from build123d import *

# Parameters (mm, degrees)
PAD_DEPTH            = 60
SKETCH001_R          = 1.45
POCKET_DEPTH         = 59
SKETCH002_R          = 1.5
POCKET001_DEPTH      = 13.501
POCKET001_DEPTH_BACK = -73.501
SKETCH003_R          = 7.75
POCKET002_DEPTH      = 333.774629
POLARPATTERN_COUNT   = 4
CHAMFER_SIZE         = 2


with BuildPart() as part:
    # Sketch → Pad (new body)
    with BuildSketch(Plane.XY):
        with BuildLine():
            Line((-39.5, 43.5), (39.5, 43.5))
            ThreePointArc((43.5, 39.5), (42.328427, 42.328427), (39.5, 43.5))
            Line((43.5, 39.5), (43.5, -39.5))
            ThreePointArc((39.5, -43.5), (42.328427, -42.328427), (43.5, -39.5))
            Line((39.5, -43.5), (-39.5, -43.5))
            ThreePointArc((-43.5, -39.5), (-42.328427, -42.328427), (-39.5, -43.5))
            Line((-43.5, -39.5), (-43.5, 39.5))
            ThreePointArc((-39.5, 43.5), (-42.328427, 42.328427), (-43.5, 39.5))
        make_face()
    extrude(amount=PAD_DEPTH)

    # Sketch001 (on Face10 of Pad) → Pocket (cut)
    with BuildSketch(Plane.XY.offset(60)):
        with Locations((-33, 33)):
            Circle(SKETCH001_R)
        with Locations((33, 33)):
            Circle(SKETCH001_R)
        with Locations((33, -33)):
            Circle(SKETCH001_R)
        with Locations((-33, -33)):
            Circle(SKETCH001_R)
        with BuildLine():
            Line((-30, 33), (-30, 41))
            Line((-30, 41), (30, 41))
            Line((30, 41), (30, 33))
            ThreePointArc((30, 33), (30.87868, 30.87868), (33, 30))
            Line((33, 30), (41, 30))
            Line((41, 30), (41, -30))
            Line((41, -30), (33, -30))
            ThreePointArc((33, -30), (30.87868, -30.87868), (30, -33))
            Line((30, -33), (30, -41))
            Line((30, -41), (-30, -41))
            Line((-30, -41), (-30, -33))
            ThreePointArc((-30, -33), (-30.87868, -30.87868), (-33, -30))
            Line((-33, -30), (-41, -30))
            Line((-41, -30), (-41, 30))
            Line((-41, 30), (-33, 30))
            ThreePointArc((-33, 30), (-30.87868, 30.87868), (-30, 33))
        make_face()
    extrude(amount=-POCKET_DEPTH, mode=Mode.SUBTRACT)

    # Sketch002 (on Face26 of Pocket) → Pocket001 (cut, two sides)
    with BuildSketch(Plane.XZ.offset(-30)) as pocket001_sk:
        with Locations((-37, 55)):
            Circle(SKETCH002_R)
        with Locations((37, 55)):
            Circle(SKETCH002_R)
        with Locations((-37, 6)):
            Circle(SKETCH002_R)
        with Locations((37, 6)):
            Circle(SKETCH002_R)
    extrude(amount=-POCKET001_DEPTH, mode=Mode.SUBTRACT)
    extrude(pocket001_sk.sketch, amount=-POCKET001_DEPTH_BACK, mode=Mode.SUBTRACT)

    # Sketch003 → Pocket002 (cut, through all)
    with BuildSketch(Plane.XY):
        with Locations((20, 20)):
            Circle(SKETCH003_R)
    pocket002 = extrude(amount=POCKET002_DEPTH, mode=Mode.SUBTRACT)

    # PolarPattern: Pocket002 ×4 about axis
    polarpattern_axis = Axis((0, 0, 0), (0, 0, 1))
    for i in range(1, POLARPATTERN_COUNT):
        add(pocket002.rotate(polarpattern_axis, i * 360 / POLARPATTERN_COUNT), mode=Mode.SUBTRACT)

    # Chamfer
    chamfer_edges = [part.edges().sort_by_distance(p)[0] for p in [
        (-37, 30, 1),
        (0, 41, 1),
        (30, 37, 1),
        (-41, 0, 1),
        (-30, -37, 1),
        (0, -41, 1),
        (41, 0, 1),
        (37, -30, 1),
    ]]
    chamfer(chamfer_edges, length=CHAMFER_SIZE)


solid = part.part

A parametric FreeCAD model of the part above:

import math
import FreeCAD as App
import Part
import Sketcher

V = App.Vector


def edges_at(feature, points):
    """Names of the edges that pass closest to the given points."""
    edges = feature.Shape.Edges
    near = lambda p: min(range(len(edges)), key=lambda i: edges[i].distToShape(Part.Vertex(*p))[0])
    return sorted({f"Edge{near(p) + 1}" for p in points})

doc = App.newDocument("Part")
params = doc.addObject("Spreadsheet::Sheet", "Params")
for row, (alias, value) in enumerate([
    ("sketch1_radius", "4 mm"),
    ("sketch1_width", "79 mm"),
    ("pad1_length", "60 mm"),
    ("sketch2_radius", "3.000001 mm"),
    ("sketch2_diameter", "2.9 mm"),
    ("sketch2_width", "8 mm"),
    ("sketch2_width2", "60 mm"),
    ("pocket1_length", "59 mm"),
    ("sketch3_diameter", "3 mm"),
    ("sketch4_diameter", "15.5 mm"),
    ("chamfer_size", "2 mm"),
], start=1):
    params.set(f"A{row}", alias)
    params.set(f"B{row}", "=" + value)
    params.setAlias(f"B{row}", alias)

body = doc.addObject("PartDesign::Body", "Body")

# Sketch on XY plane
sketch1 = body.newObject("Sketcher::SketchObject", "Sketch")
sketch1.AttachmentSupport = (doc.getObject("XY_Plane"), [""])
sketch1.MapMode = "FlatFace"
sketch1.addGeometry(Part.LineSegment(V(39.5, 43.5, 0), V(-39.5, 43.5, 0)), False)
sketch1.addGeometry(Part.ArcOfCircle(Part.Circle(V(-39.5, 39.5, 0), V(0, 0, 1), 4), math.radians(90.000006), math.radians(179.999994)), False)
sketch1.addGeometry(Part.LineSegment(V(-43.5, 39.5, 0), V(-43.5, -39.5, 0)), False)
sketch1.addGeometry(Part.ArcOfCircle(Part.Circle(V(-39.5, -39.5, 0), V(0, 0, 1), 4), math.radians(-179.999994), math.radians(-90.000006)), False)
sketch1.addGeometry(Part.LineSegment(V(-39.5, -43.5, 0), V(39.5, -43.5, 0)), False)
sketch1.addGeometry(Part.ArcOfCircle(Part.Circle(V(39.5, -39.5, 0), V(0, 0, 1), 4), math.radians(-89.999994), math.radians(-0.000006)), False)
sketch1.addGeometry(Part.LineSegment(V(43.5, -39.5, 0), V(43.5, 39.5, 0)), False)
sketch1.addGeometry(Part.ArcOfCircle(Part.Circle(V(39.5, 39.5, 0), V(0, 0, 1), 4), math.radians(0.000006), math.radians(89.999994)), False)
sketch1.addConstraint(Sketcher.Constraint("Tangent", 0, 2, 1, 1))
sketch1.addConstraint(Sketcher.Constraint("Tangent", 1, 2, 2, 1))
sketch1.addConstraint(Sketcher.Constraint("Tangent", 2, 2, 3, 1))
sketch1.addConstraint(Sketcher.Constraint("Tangent", 3, 2, 4, 1))
sketch1.addConstraint(Sketcher.Constraint("Tangent", 4, 2, 5, 1))
sketch1.addConstraint(Sketcher.Constraint("Tangent", 5, 2, 6, 1))
sketch1.addConstraint(Sketcher.Constraint("Tangent", 6, 2, 7, 1))
sketch1.addConstraint(Sketcher.Constraint("Tangent", 7, 2, 0, 1))
sketch1.addConstraint(Sketcher.Constraint("Horizontal", 0))
sketch1.addConstraint(Sketcher.Constraint("Vertical", 2))
sketch1.addConstraint(Sketcher.Constraint("Horizontal", 4))
sketch1.addConstraint(Sketcher.Constraint("Vertical", 6))
sketch1.addConstraint(Sketcher.Constraint("Equal", 1, 3))
sketch1.addConstraint(Sketcher.Constraint("Equal", 3, 5))
sketch1.addConstraint(Sketcher.Constraint("Equal", 5, 7))
sketch1.addConstraint(Sketcher.Constraint("Symmetric", 1, 3, 5, 3, -1, 1))
sketch1.addConstraint(Sketcher.Constraint("Equal", 4, 2))
sketch1.addConstraint(Sketcher.Constraint("Radius", 1, 4.0))
sketch1.addConstraint(Sketcher.Constraint("DistanceX", 0, 2, 0, 1, 79.0))
sketch1.setExpression("Constraints[17]", "Params.sketch1_radius")
sketch1.setExpression("Constraints[18]", "Params.sketch1_width")
pad1 = body.newObject("PartDesign::Pad", "Pad")
pad1.Profile = sketch1
pad1.setExpression("Length", "Params.pad1_length")

# Sketch on XY plane
sketch2 = body.newObject("Sketcher::SketchObject", "Sketch001")
sketch2.AttachmentSupport = (doc.getObject("XY_Plane"), [""])
sketch2.MapMode = "FlatFace"
sketch2.AttachmentOffset = App.Placement(V(0, 0, 60), App.Rotation())
sketch2.addGeometry(Part.Circle(V(-33, 33, 0), V(0, 0, 1), 1.45), False)
sketch2.addGeometry(Part.Circle(V(33, 33, 0), V(0, 0, 1), 1.45), False)
sketch2.addGeometry(Part.Circle(V(33, -33, 0), V(0, 0, 1), 1.45), False)
sketch2.addGeometry(Part.Circle(V(-33, -33, 0), V(0, 0, 1), 1.45), False)
sketch2.addGeometry(Part.LineSegment(V(-30, 41, 0), V(-30, 33, 0)), False)
sketch2.addGeometry(Part.ArcOfCircle(Part.Circle(V(-33.000001, 33.000001, 0), V(0, 0, 1), 3.000001), math.radians(-89.999978), math.radians(-0.000022)), False)
sketch2.addGeometry(Part.LineSegment(V(-33, 30, 0), V(-41, 30, 0)), False)
sketch2.addGeometry(Part.LineSegment(V(-41, 30, 0), V(-41, -30, 0)), False)
sketch2.addGeometry(Part.LineSegment(V(-41, -30, 0), V(-33, -30, 0)), False)
sketch2.addGeometry(Part.ArcOfCircle(Part.Circle(V(-33.000001, -33.000001, 0), V(0, 0, 1), 3.000001), math.radians(0.000022), math.radians(89.999978)), False)
sketch2.addGeometry(Part.LineSegment(V(-30, -33, 0), V(-30, -41, 0)), False)
sketch2.addGeometry(Part.LineSegment(V(-30, -41, 0), V(30, -41, 0)), False)
sketch2.addGeometry(Part.LineSegment(V(30, -41, 0), V(30, -33, 0)), False)
sketch2.addGeometry(Part.ArcOfCircle(Part.Circle(V(33.000001, -33.000001, 0), V(0, 0, 1), 3.000001), math.radians(90.000022), math.radians(179.999978)), False)
sketch2.addGeometry(Part.LineSegment(V(33, -30, 0), V(41, -30, 0)), False)
sketch2.addGeometry(Part.LineSegment(V(41, -30, 0), V(41, 30, 0)), False)
sketch2.addGeometry(Part.LineSegment(V(41, 30, 0), V(33, 30, 0)), False)
sketch2.addGeometry(Part.ArcOfCircle(Part.Circle(V(33.000001, 33.000001, 0), V(0, 0, 1), 3.000001), math.radians(-179.999978), math.radians(-90.000022)), False)
sketch2.addGeometry(Part.LineSegment(V(30, 33, 0), V(30, 41, 0)), False)
sketch2.addGeometry(Part.LineSegment(V(30, 41, 0), V(-30, 41, 0)), False)
sketch2.addConstraint(Sketcher.Constraint("Tangent", 4, 2, 5, 2))
sketch2.addConstraint(Sketcher.Constraint("Tangent", 5, 1, 6, 1))
sketch2.addConstraint(Sketcher.Constraint("Coincident", 6, 2, 7, 1))
sketch2.addConstraint(Sketcher.Constraint("Coincident", 7, 2, 8, 1))
sketch2.addConstraint(Sketcher.Constraint("Tangent", 8, 2, 9, 2))
sketch2.addConstraint(Sketcher.Constraint("Tangent", 9, 1, 10, 1))
sketch2.addConstraint(Sketcher.Constraint("Coincident", 10, 2, 11, 1))
sketch2.addConstraint(Sketcher.Constraint("Coincident", 11, 2, 12, 1))
sketch2.addConstraint(Sketcher.Constraint("Tangent", 12, 2, 13, 2))
sketch2.addConstraint(Sketcher.Constraint("Tangent", 13, 1, 14, 1))
sketch2.addConstraint(Sketcher.Constraint("Coincident", 14, 2, 15, 1))
sketch2.addConstraint(Sketcher.Constraint("Coincident", 15, 2, 16, 1))
sketch2.addConstraint(Sketcher.Constraint("Tangent", 16, 2, 17, 2))
sketch2.addConstraint(Sketcher.Constraint("Tangent", 17, 1, 18, 1))
sketch2.addConstraint(Sketcher.Constraint("Coincident", 18, 2, 19, 1))
sketch2.addConstraint(Sketcher.Constraint("Coincident", 19, 2, 4, 1))
sketch2.addConstraint(Sketcher.Constraint("Vertical", 4))
sketch2.addConstraint(Sketcher.Constraint("Horizontal", 6))
sketch2.addConstraint(Sketcher.Constraint("Vertical", 7))
sketch2.addConstraint(Sketcher.Constraint("Horizontal", 8))
sketch2.addConstraint(Sketcher.Constraint("Vertical", 10))
sketch2.addConstraint(Sketcher.Constraint("Horizontal", 11))
sketch2.addConstraint(Sketcher.Constraint("Vertical", 12))
sketch2.addConstraint(Sketcher.Constraint("Horizontal", 14))
sketch2.addConstraint(Sketcher.Constraint("Vertical", 15))
sketch2.addConstraint(Sketcher.Constraint("Horizontal", 16))
sketch2.addConstraint(Sketcher.Constraint("Vertical", 18))
sketch2.addConstraint(Sketcher.Constraint("Horizontal", 19))
sketch2.addConstraint(Sketcher.Constraint("Coincident", 5, 3, 0, 3))
sketch2.addConstraint(Sketcher.Constraint("Coincident", 9, 3, 3, 3))
sketch2.addConstraint(Sketcher.Constraint("Coincident", 13, 3, 2, 3))
sketch2.addConstraint(Sketcher.Constraint("Coincident", 17, 3, 1, 3))
sketch2.addConstraint(Sketcher.Constraint("Equal", 0, 1))
sketch2.addConstraint(Sketcher.Constraint("Equal", 1, 2))
sketch2.addConstraint(Sketcher.Constraint("Equal", 2, 3))
sketch2.addConstraint(Sketcher.Constraint("Equal", 5, 9))
sketch2.addConstraint(Sketcher.Constraint("Equal", 9, 13))
sketch2.addConstraint(Sketcher.Constraint("Equal", 13, 17))
sketch2.addConstraint(Sketcher.Constraint("Symmetric", 0, 3, 2, 3, -1, 1))
sketch2.addConstraint(Sketcher.Constraint("Symmetric", 1, 3, 3, 3, -1, 1))
sketch2.addConstraint(Sketcher.Constraint("Symmetric", 0, 3, 1, 3, -2))
sketch2.addConstraint(Sketcher.Constraint("Equal", 8, 14))
sketch2.addConstraint(Sketcher.Constraint("Equal", 16, 4))
sketch2.addConstraint(Sketcher.Constraint("Equal", 19, 7))
sketch2.addConstraint(Sketcher.Constraint("Equal", 4, 10))
sketch2.addConstraint(Sketcher.Constraint("Radius", 5, 3.000001))
sketch2.addConstraint(Sketcher.Constraint("Diameter", 0, 2.9))
sketch2.addConstraint(Sketcher.Constraint("DistanceX", 6, 2, 6, 1, 8.0))
sketch2.addConstraint(Sketcher.Constraint("DistanceX", 11, 1, 11, 2, 60.0))
sketch2.setExpression("Constraints[45]", "Params.sketch2_radius")
sketch2.setExpression("Constraints[46]", "Params.sketch2_diameter")
sketch2.setExpression("Constraints[47]", "Params.sketch2_width")
sketch2.setExpression("Constraints[48]", "Params.sketch2_width2")
pocket1 = body.newObject("PartDesign::Pocket", "Pocket")
pocket1.Profile = sketch2
pocket1.setExpression("Length", "Params.pocket1_length")

# Sketch on XZ plane
sketch3 = body.newObject("Sketcher::SketchObject", "Sketch002")
sketch3.AttachmentSupport = (doc.getObject("XZ_Plane"), [""])
sketch3.MapMode = "FlatFace"
sketch3.AttachmentOffset = App.Placement(V(0, 0, -30), App.Rotation())
sketch3.addGeometry(Part.Circle(V(-37, 55, 0), V(0, 0, 1), 1.5), False)
sketch3.addGeometry(Part.Circle(V(37, 55, 0), V(0, 0, 1), 1.5), False)
sketch3.addGeometry(Part.Circle(V(-37, 6, 0), V(0, 0, 1), 1.5), False)
sketch3.addGeometry(Part.Circle(V(37, 6, 0), V(0, 0, 1), 1.5), False)
sketch3.addConstraint(Sketcher.Constraint("Equal", 0, 1))
sketch3.addConstraint(Sketcher.Constraint("Equal", 1, 2))
sketch3.addConstraint(Sketcher.Constraint("Equal", 2, 3))
sketch3.addConstraint(Sketcher.Constraint("Symmetric", 0, 3, 1, 3, -2))
sketch3.addConstraint(Sketcher.Constraint("Symmetric", 2, 3, 3, 3, -2))
sketch3.addConstraint(Sketcher.Constraint("Vertical", 0, 3, 2, 3))
sketch3.addConstraint(Sketcher.Constraint("Diameter", 0, 3.0))
sketch3.addConstraint(Sketcher.Constraint("DistanceX", 0, 3, -1, 1, 37.0))
sketch3.addConstraint(Sketcher.Constraint("DistanceY", -1, 1, 0, 3, 55.0))
sketch3.addConstraint(Sketcher.Constraint("DistanceY", -1, 1, 2, 3, 6.0))
sketch3.setExpression("Constraints[6]", "Params.sketch3_diameter")
pocket2 = body.newObject("PartDesign::Pocket", "Pocket001")
pocket2.Profile = sketch3
pocket2.Type = "ThroughAll"
pocket2.Midplane = True

# Sketch on XY plane
sketch4 = body.newObject("Sketcher::SketchObject", "Sketch003")
sketch4.AttachmentSupport = (doc.getObject("XY_Plane"), [""])
sketch4.MapMode = "FlatFace"
sketch4.addGeometry(Part.Circle(V(20, 20, 0), V(0, 0, 1), 7.75), False)
sketch4.addConstraint(Sketcher.Constraint("Diameter", 0, 15.5))
sketch4.addConstraint(Sketcher.Constraint("DistanceX", -1, 1, 0, 3, 20.0))
sketch4.addConstraint(Sketcher.Constraint("DistanceY", -1, 1, 0, 3, 20.0))
sketch4.setExpression("Constraints[0]", "Params.sketch4_diameter")
pocket3 = body.newObject("PartDesign::Pocket", "Pocket002")
pocket3.Profile = sketch4
pocket3.Type = "ThroughAll"
pocket3.Reversed = True
doc.recompute()

polarpattern = body.newObject("PartDesign::PolarPattern", "PolarPattern")
polarpattern.Originals = [pocket3]
polarpattern.Axis = (doc.getObject("Z_Axis"), [""])
polarpattern.Angle = 360
polarpattern.Occurrences = 4
body.Tip = polarpattern
doc.recompute()

chamfer = body.newObject("PartDesign::Chamfer", "Chamfer")
chamfer.Base = (polarpattern, edges_at(polarpattern, [
    (-37, 30, 1),
    (0, 41, 1),
    (30, 37, 1),
    (-41, 0, 1),
    (-30, -37, 1),
    (0, -41, 1),
    (41, 0, 1),
    (37, -30, 1),
]))
chamfer.setExpression("Size", "Params.chamfer_size")

doc.recompute()
